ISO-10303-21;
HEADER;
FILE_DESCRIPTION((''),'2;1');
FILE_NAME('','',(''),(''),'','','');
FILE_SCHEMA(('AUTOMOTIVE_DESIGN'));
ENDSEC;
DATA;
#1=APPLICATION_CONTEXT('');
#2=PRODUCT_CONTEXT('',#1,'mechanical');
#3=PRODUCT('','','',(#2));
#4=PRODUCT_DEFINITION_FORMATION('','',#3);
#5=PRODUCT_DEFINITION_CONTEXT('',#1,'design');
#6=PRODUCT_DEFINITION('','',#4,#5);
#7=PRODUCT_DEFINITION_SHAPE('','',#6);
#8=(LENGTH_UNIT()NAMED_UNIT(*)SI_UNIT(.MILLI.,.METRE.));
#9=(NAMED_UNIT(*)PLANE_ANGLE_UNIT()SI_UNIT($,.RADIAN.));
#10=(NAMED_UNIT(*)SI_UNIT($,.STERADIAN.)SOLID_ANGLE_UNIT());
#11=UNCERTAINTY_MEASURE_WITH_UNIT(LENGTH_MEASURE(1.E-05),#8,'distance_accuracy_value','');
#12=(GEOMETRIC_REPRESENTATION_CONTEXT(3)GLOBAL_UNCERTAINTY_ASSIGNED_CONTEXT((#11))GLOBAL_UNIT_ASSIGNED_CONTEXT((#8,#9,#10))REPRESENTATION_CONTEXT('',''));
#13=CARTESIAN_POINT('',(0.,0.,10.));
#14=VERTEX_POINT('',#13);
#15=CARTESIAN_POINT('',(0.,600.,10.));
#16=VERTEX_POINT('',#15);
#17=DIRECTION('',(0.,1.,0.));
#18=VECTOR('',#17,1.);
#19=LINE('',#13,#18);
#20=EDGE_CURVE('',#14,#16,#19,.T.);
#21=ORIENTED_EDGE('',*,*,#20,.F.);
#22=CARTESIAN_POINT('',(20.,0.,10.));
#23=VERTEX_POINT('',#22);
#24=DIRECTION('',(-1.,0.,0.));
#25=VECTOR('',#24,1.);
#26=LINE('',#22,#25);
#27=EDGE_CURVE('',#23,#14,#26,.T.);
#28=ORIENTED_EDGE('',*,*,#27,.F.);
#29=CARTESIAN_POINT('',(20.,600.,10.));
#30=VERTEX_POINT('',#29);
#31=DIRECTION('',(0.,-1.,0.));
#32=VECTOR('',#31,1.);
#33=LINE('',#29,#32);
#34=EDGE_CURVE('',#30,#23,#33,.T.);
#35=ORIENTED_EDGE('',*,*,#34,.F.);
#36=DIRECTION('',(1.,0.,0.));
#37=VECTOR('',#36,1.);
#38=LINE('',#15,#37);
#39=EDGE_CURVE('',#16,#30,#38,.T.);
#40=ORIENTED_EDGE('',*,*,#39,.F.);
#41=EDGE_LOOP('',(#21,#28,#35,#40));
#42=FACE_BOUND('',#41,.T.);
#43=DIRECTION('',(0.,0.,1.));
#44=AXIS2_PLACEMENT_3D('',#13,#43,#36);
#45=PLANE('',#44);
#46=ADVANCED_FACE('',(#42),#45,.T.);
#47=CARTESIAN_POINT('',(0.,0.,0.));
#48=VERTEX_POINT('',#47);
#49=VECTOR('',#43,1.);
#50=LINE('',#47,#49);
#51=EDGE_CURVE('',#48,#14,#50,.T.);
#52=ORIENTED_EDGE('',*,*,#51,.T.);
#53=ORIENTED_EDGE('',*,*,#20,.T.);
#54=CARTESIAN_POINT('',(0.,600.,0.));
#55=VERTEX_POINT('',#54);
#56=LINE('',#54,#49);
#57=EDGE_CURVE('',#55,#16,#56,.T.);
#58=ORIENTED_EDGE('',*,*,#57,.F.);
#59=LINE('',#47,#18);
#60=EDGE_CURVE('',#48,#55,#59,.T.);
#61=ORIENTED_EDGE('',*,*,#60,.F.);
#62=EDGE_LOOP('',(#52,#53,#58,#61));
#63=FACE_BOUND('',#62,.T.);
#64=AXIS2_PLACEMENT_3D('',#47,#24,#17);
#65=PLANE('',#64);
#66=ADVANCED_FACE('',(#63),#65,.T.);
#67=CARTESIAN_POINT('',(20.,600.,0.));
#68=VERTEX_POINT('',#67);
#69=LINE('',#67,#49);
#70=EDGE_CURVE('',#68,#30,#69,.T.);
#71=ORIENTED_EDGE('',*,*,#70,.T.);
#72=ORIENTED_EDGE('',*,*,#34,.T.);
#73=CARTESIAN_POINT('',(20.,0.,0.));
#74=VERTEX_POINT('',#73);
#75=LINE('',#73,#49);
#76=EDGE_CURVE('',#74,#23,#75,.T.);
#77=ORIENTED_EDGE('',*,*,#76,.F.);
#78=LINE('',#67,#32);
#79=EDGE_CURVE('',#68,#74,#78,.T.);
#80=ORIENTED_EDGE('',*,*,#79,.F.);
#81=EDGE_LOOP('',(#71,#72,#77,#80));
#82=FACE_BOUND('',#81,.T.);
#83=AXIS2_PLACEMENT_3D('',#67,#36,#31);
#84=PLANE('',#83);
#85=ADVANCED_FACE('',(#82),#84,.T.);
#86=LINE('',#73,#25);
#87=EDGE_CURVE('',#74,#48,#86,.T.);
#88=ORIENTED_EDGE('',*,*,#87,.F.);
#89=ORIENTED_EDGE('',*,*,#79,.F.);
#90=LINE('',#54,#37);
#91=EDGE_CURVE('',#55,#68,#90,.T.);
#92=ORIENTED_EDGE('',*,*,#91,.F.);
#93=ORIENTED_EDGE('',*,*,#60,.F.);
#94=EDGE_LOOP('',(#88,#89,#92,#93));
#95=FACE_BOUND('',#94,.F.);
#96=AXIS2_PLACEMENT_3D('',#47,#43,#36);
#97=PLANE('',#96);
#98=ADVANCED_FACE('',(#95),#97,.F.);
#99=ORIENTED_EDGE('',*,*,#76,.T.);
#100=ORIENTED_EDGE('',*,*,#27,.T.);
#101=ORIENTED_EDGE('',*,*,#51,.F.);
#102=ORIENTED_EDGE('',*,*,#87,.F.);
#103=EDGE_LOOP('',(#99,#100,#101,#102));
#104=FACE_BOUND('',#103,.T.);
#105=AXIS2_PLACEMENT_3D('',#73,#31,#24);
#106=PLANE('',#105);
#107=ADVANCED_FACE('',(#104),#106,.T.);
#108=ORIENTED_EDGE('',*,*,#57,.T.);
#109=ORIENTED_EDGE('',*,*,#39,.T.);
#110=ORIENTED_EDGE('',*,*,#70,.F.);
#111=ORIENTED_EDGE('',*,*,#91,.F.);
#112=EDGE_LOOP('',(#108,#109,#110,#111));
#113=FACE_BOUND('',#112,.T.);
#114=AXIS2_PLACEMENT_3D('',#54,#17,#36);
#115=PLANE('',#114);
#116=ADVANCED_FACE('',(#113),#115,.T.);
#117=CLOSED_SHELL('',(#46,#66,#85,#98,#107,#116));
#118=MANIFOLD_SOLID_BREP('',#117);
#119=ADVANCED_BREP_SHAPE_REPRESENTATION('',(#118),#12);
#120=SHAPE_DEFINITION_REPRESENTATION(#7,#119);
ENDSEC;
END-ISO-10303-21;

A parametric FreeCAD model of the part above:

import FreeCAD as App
import Part
import Sketcher

doc = App.newDocument("Part")
body = doc.addObject("PartDesign::Body", "Body")

# Sketch on XY plane
sketch1 = doc.addObject("Sketcher::SketchObject", "Sketch")
body.addObject(sketch1)
sketch1.AttachmentSupport = (doc.XY_Plane, [""])
sketch1.MapMode = "FlatFace"
sketch1.addGeometry(Part.LineSegment(App.Vector(0, 600, 0), App.Vector(0, 0, 0)), False)
sketch1.addGeometry(Part.LineSegment(App.Vector(0, 0, 0), App.Vector(20, 0, 0)), False)
sketch1.addGeometry(Part.LineSegment(App.Vector(20, 0, 0), App.Vector(20, 600, 0)), False)
sketch1.addGeometry(Part.LineSegment(App.Vector(20, 600, 0), App.Vector(0, 600, 0)), False)
sketch1.addConstraint(Sketcher.Constraint("Coincident", 0, 2, 1, 1))
sketch1.addConstraint(Sketcher.Constraint("Coincident", 1, 2, 2, 1))
sketch1.addConstraint(Sketcher.Constraint("Coincident", 2, 2, 3, 1))
sketch1.addConstraint(Sketcher.Constraint("Coincident", 3, 2, 0, 1))
sketch1.addConstraint(Sketcher.Constraint("Vertical", 0))
sketch1.addConstraint(Sketcher.Constraint("Horizontal", 1))
sketch1.addConstraint(Sketcher.Constraint("Vertical", 2))
sketch1.addConstraint(Sketcher.Constraint("Horizontal", 3))
sketch1.addConstraint(Sketcher.Constraint("Coincident", 0, 2, -1, 1))
sketch1.addConstraint(Sketcher.Constraint("DistanceX", 1, 1, 1, 2, 20.0))
sketch1.addConstraint(Sketcher.Constraint("DistanceY", 0, 2, 0, 1, 600.0))
pad1 = doc.addObject("PartDesign::Pad", "Pad")
body.addObject(pad1)
pad1.Profile = sketch1
pad1.Length = 10

doc.recompute()
